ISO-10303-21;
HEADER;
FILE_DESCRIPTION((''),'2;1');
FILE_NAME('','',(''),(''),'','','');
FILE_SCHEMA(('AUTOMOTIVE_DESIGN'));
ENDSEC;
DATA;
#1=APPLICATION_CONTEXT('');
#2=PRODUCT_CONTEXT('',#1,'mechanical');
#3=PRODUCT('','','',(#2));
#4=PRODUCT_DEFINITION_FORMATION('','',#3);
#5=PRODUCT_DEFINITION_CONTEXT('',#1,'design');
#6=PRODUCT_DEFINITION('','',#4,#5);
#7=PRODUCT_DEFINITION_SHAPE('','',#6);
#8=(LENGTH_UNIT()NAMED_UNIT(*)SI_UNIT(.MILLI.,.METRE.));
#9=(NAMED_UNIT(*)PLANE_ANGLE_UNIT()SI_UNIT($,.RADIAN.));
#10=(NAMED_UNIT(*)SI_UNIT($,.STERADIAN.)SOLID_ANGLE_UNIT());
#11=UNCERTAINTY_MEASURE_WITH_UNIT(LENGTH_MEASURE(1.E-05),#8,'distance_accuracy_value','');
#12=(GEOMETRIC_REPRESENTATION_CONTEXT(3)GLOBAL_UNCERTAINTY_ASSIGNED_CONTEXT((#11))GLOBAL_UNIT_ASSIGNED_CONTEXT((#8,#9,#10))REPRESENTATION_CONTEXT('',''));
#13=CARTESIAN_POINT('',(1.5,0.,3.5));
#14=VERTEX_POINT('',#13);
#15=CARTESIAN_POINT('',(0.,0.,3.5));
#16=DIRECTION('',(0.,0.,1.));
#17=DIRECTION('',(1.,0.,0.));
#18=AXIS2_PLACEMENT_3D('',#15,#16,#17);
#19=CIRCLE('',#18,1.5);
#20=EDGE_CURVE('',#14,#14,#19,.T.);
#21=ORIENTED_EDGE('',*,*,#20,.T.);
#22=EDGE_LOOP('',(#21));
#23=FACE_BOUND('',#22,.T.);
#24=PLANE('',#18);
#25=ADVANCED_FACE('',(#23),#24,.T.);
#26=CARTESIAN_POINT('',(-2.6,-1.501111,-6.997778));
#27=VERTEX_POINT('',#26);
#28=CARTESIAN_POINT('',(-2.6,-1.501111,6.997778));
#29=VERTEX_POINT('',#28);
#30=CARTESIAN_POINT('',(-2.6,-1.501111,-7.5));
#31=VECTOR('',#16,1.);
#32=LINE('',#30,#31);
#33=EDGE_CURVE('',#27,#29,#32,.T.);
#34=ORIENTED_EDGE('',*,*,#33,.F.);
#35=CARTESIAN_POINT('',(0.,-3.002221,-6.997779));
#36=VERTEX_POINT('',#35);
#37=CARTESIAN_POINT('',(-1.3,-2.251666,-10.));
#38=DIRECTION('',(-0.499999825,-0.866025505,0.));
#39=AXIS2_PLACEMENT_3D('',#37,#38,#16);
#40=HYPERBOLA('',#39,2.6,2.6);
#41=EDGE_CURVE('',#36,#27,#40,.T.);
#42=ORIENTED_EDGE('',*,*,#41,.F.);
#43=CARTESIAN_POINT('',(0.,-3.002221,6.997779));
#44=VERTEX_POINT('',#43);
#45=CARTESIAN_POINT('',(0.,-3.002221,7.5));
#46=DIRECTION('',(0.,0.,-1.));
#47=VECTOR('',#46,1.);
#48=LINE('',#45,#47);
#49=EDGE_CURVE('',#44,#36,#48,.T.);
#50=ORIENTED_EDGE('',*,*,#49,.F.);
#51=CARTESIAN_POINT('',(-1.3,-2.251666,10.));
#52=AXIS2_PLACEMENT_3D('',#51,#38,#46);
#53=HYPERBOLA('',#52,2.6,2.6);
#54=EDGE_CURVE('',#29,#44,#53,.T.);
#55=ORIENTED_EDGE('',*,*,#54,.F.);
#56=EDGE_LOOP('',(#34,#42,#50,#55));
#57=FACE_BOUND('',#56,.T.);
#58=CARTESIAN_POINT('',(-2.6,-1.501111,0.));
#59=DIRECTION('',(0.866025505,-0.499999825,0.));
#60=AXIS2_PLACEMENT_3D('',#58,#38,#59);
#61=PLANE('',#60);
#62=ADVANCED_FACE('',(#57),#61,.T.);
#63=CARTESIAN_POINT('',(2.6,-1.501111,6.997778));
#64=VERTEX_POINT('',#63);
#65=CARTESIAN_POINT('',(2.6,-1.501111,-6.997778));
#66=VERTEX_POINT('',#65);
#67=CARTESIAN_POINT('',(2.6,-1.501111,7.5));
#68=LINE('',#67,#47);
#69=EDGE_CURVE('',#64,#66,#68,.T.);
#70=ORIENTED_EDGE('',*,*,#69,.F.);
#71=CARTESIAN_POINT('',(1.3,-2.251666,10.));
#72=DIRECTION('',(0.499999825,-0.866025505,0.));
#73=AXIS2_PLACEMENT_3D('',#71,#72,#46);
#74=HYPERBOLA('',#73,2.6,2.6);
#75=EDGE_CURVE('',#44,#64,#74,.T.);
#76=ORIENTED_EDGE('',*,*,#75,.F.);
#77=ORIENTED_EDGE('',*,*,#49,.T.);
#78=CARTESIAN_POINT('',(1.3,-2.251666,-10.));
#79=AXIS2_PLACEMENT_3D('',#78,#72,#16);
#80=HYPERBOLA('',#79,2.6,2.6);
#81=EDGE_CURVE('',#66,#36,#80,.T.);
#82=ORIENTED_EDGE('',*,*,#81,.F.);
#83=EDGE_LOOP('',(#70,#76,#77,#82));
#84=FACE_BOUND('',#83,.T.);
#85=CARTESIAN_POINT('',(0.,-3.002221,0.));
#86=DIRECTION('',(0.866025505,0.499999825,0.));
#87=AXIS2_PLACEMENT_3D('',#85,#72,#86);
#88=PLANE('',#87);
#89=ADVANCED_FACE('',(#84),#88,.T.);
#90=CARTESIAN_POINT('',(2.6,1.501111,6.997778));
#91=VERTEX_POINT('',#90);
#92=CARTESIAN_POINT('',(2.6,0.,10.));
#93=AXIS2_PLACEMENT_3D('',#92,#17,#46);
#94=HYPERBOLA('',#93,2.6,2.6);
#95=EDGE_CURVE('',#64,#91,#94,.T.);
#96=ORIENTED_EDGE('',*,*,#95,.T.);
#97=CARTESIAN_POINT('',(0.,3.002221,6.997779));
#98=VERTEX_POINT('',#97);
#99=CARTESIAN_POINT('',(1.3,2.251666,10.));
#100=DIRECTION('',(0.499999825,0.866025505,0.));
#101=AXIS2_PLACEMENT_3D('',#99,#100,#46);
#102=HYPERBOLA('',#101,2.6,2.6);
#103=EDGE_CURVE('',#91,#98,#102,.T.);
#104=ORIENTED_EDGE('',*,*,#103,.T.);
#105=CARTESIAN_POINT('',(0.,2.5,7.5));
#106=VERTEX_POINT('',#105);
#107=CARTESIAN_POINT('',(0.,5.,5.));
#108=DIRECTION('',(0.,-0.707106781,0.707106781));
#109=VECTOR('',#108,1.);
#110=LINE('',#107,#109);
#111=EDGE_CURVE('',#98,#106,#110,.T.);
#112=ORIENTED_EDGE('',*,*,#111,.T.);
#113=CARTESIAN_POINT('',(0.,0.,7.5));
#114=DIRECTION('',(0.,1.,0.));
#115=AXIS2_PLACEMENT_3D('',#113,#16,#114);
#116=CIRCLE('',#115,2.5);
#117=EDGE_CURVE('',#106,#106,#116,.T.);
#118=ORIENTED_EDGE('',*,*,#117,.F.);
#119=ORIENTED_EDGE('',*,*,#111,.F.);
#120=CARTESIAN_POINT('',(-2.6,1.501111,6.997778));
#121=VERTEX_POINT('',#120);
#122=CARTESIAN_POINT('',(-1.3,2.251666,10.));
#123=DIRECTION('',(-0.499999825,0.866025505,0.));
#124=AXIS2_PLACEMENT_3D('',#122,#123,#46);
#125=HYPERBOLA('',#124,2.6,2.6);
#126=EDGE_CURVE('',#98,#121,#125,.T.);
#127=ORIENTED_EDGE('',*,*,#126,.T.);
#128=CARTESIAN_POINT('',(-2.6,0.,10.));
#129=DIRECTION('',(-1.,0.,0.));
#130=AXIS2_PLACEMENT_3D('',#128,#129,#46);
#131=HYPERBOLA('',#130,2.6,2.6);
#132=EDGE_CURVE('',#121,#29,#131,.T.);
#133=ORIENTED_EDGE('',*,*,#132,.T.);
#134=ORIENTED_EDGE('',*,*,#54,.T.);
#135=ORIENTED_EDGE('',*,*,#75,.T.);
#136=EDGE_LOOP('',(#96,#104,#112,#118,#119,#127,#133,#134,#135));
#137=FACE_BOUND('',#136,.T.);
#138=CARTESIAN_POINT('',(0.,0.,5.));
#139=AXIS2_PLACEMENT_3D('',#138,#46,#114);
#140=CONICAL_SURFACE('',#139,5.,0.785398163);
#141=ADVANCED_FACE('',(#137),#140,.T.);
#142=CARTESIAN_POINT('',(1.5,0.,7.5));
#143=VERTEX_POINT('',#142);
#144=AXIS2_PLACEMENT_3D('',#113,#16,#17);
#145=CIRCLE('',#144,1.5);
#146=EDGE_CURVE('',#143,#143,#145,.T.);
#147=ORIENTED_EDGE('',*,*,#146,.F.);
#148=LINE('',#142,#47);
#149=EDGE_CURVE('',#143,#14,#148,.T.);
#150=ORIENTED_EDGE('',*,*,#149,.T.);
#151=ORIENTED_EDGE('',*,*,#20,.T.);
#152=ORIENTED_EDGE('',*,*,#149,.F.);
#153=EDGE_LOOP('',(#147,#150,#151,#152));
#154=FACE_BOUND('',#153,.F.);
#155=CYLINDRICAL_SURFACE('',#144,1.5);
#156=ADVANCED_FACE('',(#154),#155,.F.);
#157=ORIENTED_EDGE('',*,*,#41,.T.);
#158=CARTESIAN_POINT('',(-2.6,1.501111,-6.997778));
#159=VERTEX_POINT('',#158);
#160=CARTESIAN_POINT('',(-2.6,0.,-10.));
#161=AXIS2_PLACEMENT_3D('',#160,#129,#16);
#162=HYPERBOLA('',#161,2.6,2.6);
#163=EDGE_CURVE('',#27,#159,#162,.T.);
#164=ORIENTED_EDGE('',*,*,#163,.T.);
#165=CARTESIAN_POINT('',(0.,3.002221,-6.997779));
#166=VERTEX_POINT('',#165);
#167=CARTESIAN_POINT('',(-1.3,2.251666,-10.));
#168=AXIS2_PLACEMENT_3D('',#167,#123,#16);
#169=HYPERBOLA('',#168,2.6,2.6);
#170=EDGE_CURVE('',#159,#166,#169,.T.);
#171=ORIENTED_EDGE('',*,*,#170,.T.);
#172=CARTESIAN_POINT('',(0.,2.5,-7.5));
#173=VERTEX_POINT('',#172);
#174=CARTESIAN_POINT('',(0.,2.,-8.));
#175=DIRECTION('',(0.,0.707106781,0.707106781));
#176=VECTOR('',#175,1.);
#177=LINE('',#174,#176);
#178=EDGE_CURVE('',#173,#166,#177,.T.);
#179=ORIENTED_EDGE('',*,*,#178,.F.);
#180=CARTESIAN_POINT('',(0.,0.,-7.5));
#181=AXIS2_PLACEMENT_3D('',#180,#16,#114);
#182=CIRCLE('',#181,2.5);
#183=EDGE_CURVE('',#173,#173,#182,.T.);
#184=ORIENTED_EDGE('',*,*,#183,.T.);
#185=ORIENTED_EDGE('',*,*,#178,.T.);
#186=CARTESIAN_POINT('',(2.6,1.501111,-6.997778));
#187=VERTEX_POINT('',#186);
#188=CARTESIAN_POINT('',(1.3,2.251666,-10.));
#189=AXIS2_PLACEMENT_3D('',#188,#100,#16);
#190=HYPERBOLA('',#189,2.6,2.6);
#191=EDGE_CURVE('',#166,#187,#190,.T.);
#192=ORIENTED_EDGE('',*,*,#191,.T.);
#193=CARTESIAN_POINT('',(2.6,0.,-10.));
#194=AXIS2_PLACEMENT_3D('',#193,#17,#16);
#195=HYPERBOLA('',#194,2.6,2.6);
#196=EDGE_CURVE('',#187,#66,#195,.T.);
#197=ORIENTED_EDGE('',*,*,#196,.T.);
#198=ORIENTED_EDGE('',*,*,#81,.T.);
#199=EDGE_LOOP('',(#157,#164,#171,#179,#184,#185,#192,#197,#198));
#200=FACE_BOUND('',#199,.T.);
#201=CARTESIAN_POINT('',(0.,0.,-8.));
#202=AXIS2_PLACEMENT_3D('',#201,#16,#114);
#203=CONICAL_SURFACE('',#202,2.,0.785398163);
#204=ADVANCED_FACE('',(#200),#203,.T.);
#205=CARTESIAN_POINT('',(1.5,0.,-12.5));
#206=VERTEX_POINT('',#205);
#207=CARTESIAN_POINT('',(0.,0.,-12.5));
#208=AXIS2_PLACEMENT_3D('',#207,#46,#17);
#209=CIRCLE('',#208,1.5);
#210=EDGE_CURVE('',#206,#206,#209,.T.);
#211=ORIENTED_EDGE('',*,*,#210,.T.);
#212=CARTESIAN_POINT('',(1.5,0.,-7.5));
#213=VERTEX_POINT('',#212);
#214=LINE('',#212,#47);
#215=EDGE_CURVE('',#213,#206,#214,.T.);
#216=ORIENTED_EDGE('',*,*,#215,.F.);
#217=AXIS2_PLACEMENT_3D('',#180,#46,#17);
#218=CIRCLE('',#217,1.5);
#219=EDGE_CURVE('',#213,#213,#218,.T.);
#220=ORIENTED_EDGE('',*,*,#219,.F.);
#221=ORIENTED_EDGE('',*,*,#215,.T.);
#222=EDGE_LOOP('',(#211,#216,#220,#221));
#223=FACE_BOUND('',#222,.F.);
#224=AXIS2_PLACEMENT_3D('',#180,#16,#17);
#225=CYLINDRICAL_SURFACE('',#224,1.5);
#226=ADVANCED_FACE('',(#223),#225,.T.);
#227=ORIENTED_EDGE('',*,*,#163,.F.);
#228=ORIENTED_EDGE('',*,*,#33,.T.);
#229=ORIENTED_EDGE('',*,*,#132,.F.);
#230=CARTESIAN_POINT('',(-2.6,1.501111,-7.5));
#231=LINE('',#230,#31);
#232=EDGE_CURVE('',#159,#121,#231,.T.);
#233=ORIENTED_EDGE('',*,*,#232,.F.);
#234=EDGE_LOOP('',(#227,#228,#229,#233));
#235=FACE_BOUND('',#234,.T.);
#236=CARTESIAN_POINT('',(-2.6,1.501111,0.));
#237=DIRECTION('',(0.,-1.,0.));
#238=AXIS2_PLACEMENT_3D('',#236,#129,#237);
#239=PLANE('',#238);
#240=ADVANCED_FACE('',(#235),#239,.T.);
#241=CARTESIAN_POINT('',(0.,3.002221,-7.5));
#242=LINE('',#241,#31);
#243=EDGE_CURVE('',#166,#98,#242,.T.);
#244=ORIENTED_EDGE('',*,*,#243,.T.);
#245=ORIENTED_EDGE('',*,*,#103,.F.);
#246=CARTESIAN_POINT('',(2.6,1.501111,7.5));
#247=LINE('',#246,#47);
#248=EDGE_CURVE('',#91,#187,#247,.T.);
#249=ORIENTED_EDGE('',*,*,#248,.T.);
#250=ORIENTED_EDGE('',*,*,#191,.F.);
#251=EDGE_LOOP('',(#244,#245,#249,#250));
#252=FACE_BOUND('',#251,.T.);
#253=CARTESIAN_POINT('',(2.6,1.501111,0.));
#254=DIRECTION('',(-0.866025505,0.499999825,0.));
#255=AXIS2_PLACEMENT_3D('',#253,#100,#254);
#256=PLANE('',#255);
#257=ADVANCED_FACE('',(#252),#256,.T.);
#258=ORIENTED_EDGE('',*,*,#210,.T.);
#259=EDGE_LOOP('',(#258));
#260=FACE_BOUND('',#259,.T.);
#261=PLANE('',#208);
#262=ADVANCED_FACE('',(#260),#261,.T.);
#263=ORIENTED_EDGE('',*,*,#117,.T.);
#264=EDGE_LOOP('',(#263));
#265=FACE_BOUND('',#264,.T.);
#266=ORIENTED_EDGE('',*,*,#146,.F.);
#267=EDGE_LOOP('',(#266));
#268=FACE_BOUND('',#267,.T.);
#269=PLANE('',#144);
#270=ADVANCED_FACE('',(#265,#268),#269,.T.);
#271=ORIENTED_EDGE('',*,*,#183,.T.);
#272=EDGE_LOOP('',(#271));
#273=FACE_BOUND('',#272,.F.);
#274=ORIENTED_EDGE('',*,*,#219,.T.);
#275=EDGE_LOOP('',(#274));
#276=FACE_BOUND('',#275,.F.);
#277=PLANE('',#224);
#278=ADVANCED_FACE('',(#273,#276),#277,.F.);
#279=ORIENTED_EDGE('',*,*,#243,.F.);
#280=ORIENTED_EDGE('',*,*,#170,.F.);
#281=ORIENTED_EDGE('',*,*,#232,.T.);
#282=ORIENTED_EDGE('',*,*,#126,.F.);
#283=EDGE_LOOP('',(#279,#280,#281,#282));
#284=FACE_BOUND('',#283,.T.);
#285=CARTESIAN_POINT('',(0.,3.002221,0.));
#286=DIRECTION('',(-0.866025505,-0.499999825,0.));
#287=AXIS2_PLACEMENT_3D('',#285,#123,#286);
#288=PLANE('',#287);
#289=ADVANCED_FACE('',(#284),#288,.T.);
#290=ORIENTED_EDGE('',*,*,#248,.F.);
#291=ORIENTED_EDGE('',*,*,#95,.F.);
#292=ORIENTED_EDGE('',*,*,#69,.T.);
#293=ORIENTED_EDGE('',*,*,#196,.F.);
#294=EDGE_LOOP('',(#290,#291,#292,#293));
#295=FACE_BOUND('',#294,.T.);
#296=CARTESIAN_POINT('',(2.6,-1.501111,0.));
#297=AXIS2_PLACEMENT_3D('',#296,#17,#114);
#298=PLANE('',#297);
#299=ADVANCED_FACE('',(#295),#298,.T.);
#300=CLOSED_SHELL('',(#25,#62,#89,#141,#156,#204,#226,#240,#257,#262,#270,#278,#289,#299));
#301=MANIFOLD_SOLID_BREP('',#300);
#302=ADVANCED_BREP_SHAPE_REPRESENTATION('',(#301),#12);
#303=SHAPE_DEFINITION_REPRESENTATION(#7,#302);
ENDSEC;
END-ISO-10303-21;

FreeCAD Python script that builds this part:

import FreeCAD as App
import Part
import Sketcher
Q = App.Units.Quantity


def add_polygon(sketch, points):
    """Adds a closed chain of lines whose ends are joined by coincident constraints."""
    first, n = sketch.GeometryCount, len(points)
    for a, b in zip(points, points[1:] + points[:1]):
        sketch.addGeometry(Part.LineSegment(App.Vector(*a, 0), App.Vector(*b, 0)), False)
    for i in range(n):
        sketch.addConstraint(Sketcher.Constraint("Coincident", first + i, 2, first + (i + 1) % n, 1))

doc = App.newDocument("Part")
body = doc.addObject("PartDesign::Body", "Body")

sketch1 = body.newObject("Sketcher::SketchObject", "Sketch")
sketch1.AttachmentSupport = (doc.getObject("XY_Plane"), [""])
sketch1.MapMode = "FlatFace"
add_polygon(sketch1, [(2.6, 1.501111), (0, 3.002221), (-2.6, 1.501111), (-2.6, -1.501111), (0, -3.002221), (2.6, -1.501111)])
sketch1.addConstraint(Sketcher.Constraint("Vertical", 2))
sketch1.addConstraint(Sketcher.Constraint("Vertical", 5))
sketch1.addConstraint(Sketcher.Constraint("Symmetric", 0, 2, 3, 2, -1, 1))
sketch1.addConstraint(Sketcher.Constraint("Symmetric", 1, 2, 4, 2, -1, 1))
sketch1.addConstraint(Sketcher.Constraint("PointOnObject", 0, 2, -2))
sketch1.addConstraint(Sketcher.Constraint("Parallel", 0, 3))
sketch1.addConstraint(Sketcher.Constraint("Horizontal", 2, 2, 4, 2))
sketch1.addConstraint(Sketcher.Constraint("Angle", 0, Q("150.000012 deg")))
sketch1.addConstraint(Sketcher.Constraint("DistanceX", 1, 2, -1, 1, Q("2.6 mm")))
sketch1.addConstraint(Sketcher.Constraint("DistanceY", 2, 2, 2, 1, Q("3.002222 mm")))
pad1 = body.newObject("PartDesign::Pad", "Pad")
pad1.Profile = sketch1
pad1.Length = 15
pad1.Midplane = True

sketch2 = body.newObject("Sketcher::SketchObject", "Sketch001")
sketch2.AttachmentSupport = (doc.getObject("XY_Plane"), [""])
sketch2.MapMode = "FlatFace"
sketch2.AttachmentOffset = App.Placement(App.Vector(0, 0, 7.5), App.Rotation())
sketch2.addGeometry(Part.Circle(App.Vector(0, 0, 0), App.Vector(0, 0, 1), 1.5), False)
sketch2.addConstraint(Sketcher.Constraint("Coincident", 0, 3, -1, 1))
sketch2.addConstraint(Sketcher.Constraint("Diameter", 0, Q("3 mm")))
pocket1 = body.newObject("PartDesign::Pocket", "Pocket")
pocket1.Profile = sketch2
pocket1.Length = 4

sketch3 = body.newObject("Sketcher::SketchObject", "Sketch002")
sketch3.AttachmentSupport = (doc.getObject("XY_Plane"), [""])
sketch3.MapMode = "FlatFace"
sketch3.AttachmentOffset = App.Placement(App.Vector(0, 0, -7.5), App.Rotation())
sketch3.addGeometry(Part.Circle(App.Vector(0, 0, 0), App.Vector(0, 0, 1), 1.5), False)
sketch3.addConstraint(Sketcher.Constraint("Coincident", 0, 3, -1, 1))
sketch3.addConstraint(Sketcher.Constraint("Diameter", 0, Q("3 mm")))
pad2 = body.newObject("PartDesign::Pad", "Pad001")
pad2.Profile = sketch3
pad2.Length = 5
pad2.Reversed = True

sketch4 = body.newObject("Sketcher::SketchObject", "Sketch003")
sketch4.AttachmentSupport = (doc.getObject("YZ_Plane"), [""])
sketch4.MapMode = "FlatFace"
add_polygon(sketch4, [(6, 8), (2, 8), (5, 5), (5, -5), (2, -8), (6, -8)])
sketch4.addConstraint(Sketcher.Constraint("Horizontal", 0))
sketch4.addConstraint(Sketcher.Constraint("Vertical", 2))
sketch4.addConstraint(Sketcher.Constraint("Horizontal", 4))
sketch4.addConstraint(Sketcher.Constraint("Vertical", 5))
sketch4.addConstraint(Sketcher.Constraint("Symmetric", 0, 2, 3, 2, -1))
sketch4.addConstraint(Sketcher.Constraint("Perpendicular", 1, 3))
sketch4.addConstraint(Sketcher.Constraint("Equal", 1, 3))
sketch4.addConstraint(Sketcher.Constraint("DistanceX", 0, 2, 0, 1, Q("4 mm")))
sketch4.addConstraint(Sketcher.Constraint("DistanceY", 2, 2, 2, 1, Q("10 mm")))
sketch4.addConstraint(Sketcher.Constraint("DistanceY", 5, 1, 5, 2, Q("16 mm")))
sketch4.addConstraint(Sketcher.Constraint("DistanceX", -1, 1, 0, 2, Q("2 mm")))
groove = body.newObject("PartDesign::Groove", "Groove")
groove.Profile = sketch4
groove.ReferenceAxis = (sketch4, ["V_Axis"])
groove.Angle = 360

doc.recompute()
